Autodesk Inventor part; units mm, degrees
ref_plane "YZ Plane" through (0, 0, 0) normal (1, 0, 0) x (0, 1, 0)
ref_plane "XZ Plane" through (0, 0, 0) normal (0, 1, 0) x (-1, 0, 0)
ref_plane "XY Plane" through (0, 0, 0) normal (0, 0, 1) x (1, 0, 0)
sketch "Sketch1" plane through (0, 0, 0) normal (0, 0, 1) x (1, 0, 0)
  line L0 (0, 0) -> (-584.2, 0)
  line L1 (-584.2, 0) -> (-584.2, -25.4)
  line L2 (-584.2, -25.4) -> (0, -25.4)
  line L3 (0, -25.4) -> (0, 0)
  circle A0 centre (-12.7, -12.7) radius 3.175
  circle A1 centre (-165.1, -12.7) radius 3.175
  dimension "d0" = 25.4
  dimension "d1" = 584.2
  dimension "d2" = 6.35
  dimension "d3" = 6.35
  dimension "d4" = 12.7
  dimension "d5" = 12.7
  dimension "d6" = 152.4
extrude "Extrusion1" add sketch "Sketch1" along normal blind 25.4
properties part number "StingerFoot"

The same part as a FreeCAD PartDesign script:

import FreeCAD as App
import Part
import Sketcher
from FreeCAD import Vector
Q = App.Units.Quantity


def add_polygon(sketch, points):
    """Adds a closed chain of lines whose ends are joined by coincident constraints."""
    first, n = sketch.GeometryCount, len(points)
    for a, b in zip(points, points[1:] + points[:1]):
        sketch.addGeometry(Part.LineSegment(App.Vector(*a, 0), App.Vector(*b, 0)), False)
    for i in range(n):
        sketch.addConstraint(Sketcher.Constraint("Coincident", first + i, 2, first + (i + 1) % n, 1))

doc = App.newDocument("Part")
body = doc.addObject("PartDesign::Body", "Body")

sketch1 = doc.addObject("Sketcher::SketchObject", "Sketch")
body.addObject(sketch1)
sketch1.AttachmentSupport = (doc.XY_Plane, [""])
sketch1.MapMode = "FlatFace"
add_polygon(sketch1, [(0, -25.4), (0, 0), (-584.2, 0), (-584.2, -25.4)])
sketch1.addGeometry(Part.Circle(Vector(-165.1, -12.7, 0), Vector(0, 0, 1), 3.175), False)
sketch1.addGeometry(Part.Circle(Vector(-12.7, -12.7, 0), Vector(0, 0, 1), 3.175), False)
sketch1.addConstraint(Sketcher.Constraint("Vertical", 0))
sketch1.addConstraint(Sketcher.Constraint("Horizontal", 1))
sketch1.addConstraint(Sketcher.Constraint("Vertical", 2))
sketch1.addConstraint(Sketcher.Constraint("Horizontal", 3))
sketch1.addConstraint(Sketcher.Constraint("Coincident", 0, 2, -1, 1))
sketch1.addConstraint(Sketcher.Constraint("Equal", 4, 5))
sketch1.addConstraint(Sketcher.Constraint("Horizontal", 4, 3, 5, 3))
sketch1.addConstraint(Sketcher.Constraint("Diameter", 4, Q("0.25 in")))
sketch1.addConstraint(Sketcher.Constraint("DistanceX", 1, 2, 1, 1, Q("23 in")))
sketch1.addConstraint(Sketcher.Constraint("DistanceY", 0, 1, 0, 2, Q("1 in")))
sketch1.addConstraint(Sketcher.Constraint("DistanceX", 4, 3, 5, 3, Q("6 in")))
sketch1.addConstraint(Sketcher.Constraint("DistanceY", 4, 3, -1, 1, Q("0.5 in")))
sketch1.addConstraint(Sketcher.Constraint("DistanceX", 5, 3, -1, 1, Q("0.5 in")))
pad1 = doc.addObject("PartDesign::Pad", "Pad")
body.addObject(pad1)
pad1.Profile = sketch1
pad1.Length = Q("1 in")

doc.recompute()
